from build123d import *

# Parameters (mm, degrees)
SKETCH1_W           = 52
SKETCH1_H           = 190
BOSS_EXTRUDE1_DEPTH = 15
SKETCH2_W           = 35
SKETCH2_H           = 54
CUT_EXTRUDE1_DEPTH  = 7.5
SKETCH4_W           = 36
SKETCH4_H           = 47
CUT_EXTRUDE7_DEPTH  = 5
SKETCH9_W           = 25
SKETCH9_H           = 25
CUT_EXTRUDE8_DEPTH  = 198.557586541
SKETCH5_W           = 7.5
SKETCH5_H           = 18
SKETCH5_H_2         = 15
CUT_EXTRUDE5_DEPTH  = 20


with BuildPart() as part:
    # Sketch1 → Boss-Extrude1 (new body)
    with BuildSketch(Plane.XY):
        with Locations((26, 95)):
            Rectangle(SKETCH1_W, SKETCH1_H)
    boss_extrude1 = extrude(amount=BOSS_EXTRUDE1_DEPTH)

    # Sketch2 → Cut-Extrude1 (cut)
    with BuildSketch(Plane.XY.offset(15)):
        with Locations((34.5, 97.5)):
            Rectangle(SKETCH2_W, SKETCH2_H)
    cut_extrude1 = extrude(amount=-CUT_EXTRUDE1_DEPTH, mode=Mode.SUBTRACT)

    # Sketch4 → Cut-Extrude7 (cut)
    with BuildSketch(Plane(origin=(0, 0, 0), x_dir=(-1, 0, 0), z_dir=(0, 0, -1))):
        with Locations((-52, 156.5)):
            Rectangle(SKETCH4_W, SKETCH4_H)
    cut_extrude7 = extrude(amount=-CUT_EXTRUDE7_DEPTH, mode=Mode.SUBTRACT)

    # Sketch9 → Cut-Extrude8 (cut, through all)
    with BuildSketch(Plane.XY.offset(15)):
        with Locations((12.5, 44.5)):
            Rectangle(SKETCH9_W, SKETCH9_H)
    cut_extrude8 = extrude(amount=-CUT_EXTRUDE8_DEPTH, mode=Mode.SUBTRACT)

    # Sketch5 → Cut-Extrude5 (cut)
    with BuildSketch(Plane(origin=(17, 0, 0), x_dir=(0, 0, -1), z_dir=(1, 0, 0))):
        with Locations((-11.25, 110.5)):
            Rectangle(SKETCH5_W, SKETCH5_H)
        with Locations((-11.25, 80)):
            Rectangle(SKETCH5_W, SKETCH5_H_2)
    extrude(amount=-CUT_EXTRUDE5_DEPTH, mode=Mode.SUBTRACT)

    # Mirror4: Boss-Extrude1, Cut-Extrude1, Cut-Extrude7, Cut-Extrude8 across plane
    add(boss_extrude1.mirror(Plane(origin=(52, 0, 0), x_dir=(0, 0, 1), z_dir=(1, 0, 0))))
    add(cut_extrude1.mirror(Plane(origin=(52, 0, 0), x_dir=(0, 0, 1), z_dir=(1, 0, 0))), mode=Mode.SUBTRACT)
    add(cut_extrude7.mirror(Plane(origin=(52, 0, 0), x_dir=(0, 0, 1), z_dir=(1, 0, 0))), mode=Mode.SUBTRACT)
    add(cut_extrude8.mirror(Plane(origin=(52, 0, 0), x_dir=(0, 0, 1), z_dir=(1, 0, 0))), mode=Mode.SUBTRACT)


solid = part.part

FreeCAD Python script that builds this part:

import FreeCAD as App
import Part
import Sketcher
Q = App.Units.Quantity


def add_polygon(sketch, points):
    """Adds a closed chain of lines whose ends are joined by coincident constraints."""
    first, n = sketch.GeometryCount, len(points)
    for a, b in zip(points, points[1:] + points[:1]):
        sketch.addGeometry(Part.LineSegment(App.Vector(*a, 0), App.Vector(*b, 0)), False)
    for i in range(n):
        sketch.addConstraint(Sketcher.Constraint("Coincident", first + i, 2, first + (i + 1) % n, 1))

doc = App.newDocument("Part")
params = doc.addObject("Spreadsheet::Sheet", "Params")
for row, (alias, value) in enumerate([
    ("sketch1_width", "52 mm"),
    ("sketch1_height", "190 mm"),
    ("pad1_length", "15 mm"),
    ("sketch2_width", "35 mm"),
    ("sketch2_height", "54 mm"),
    ("pocket1_length", "7.5 mm"),
    ("sketch3_width", "36 mm"),
    ("sketch3_height", "47 mm"),
    ("pocket2_length", "5 mm"),
    ("sketch4_width", "25 mm"),
    ("sketch5_width", "18 mm"),
    ("sketch5_width2", "15 mm"),
    ("sketch5_height", "7.5 mm"),
    ("pocket4_length", "20 mm"),
], start=1):
    params.set(f"A{row}", alias)
    params.set(f"B{row}", "=" + value)
    params.setAlias(f"B{row}", alias)

body = doc.addObject("PartDesign::Body", "Body")

# Sketch on XY plane
sketch1 = body.newObject("Sketcher::SketchObject", "Sketch")
sketch1.AttachmentSupport = (doc.getObject("XY_Plane"), [""])
sketch1.MapMode = "FlatFace"
add_polygon(sketch1, [(0, 190), (0, 0), (52, 0), (52, 190)])  # lines 0-3
sketch1.addConstraint(Sketcher.Constraint("Vertical", 0))
sketch1.addConstraint(Sketcher.Constraint("Horizontal", 1))
sketch1.addConstraint(Sketcher.Constraint("Vertical", 2))
sketch1.addConstraint(Sketcher.Constraint("Horizontal", 3))
sketch1.addConstraint(Sketcher.Constraint("Coincident", 0, 2, -1, 1))
sketch1.addConstraint(Sketcher.Constraint("DistanceX", 1, 1, 1, 2, Q("52 mm")))
sketch1.addConstraint(Sketcher.Constraint("DistanceY", 0, 2, 0, 1, Q("190 mm")))
sketch1.setExpression("Constraints[9]", "Params.sketch1_width")
sketch1.setExpression("Constraints[10]", "Params.sketch1_height")
pad1 = body.newObject("PartDesign::Pad", "Pad")
pad1.Profile = sketch1
pad1.setExpression("Length", "Params.pad1_length")

# Sketch on XY plane
sketch2 = body.newObject("Sketcher::SketchObject", "Sketch001")
sketch2.AttachmentSupport = (doc.getObject("XY_Plane"), [""])
sketch2.MapMode = "FlatFace"
sketch2.AttachmentOffset = App.Placement(App.Vector(0, 0, 15), App.Rotation())
add_polygon(sketch2, [(17, 124), (17, 70), (52, 70), (52, 124)])  # lines 0-3
sketch2.addConstraint(Sketcher.Constraint("Vertical", 0))
sketch2.addConstraint(Sketcher.Constraint("Horizontal", 1))
sketch2.addConstraint(Sketcher.Constraint("Vertical", 2))
sketch2.addConstraint(Sketcher.Constraint("Horizontal", 3))
sketch2.addConstraint(Sketcher.Constraint("DistanceX", 1, 1, 1, 2, Q("35 mm")))
sketch2.addConstraint(Sketcher.Constraint("DistanceY", 0, 2, 0, 1, Q("54 mm")))
sketch2.addConstraint(Sketcher.Constraint("DistanceX", -1, 1, 0, 2, Q("17 mm")))
sketch2.addConstraint(Sketcher.Constraint("DistanceY", -1, 1, 0, 2, Q("70.5 mm")))
sketch2.setExpression("Constraints[8]", "Params.sketch2_width")
sketch2.setExpression("Constraints[9]", "Params.sketch2_height")
pocket1 = body.newObject("PartDesign::Pocket", "Pocket")
pocket1.Profile = sketch2
pocket1.setExpression("Length", "Params.pocket1_length")

# Sketch on XY plane
sketch3 = body.newObject("Sketcher::SketchObject", "Sketch002")
sketch3.AttachmentSupport = (doc.getObject("XY_Plane"), [""])
sketch3.MapMode = "FlatFace"
add_polygon(sketch3, [(70, 180), (70, 133), (34, 133), (34, 180)])  # lines 0-3
sketch3.addConstraint(Sketcher.Constraint("Vertical", 0))
sketch3.addConstraint(Sketcher.Constraint("Horizontal", 1))
sketch3.addConstraint(Sketcher.Constraint("Vertical", 2))
sketch3.addConstraint(Sketcher.Constraint("Horizontal", 3))
sketch3.addConstraint(Sketcher.Constraint("DistanceX", 1, 2, 1, 1, Q("36 mm")))
sketch3.addConstraint(Sketcher.Constraint("DistanceY", 0, 2, 0, 1, Q("47 mm")))
sketch3.addConstraint(Sketcher.Constraint("DistanceX", -1, 1, 0, 2, Q("70 mm")))
sketch3.addConstraint(Sketcher.Constraint("DistanceY", -1, 1, 0, 2, Q("133 mm")))
sketch3.setExpression("Constraints[8]", "Params.sketch3_width")
sketch3.setExpression("Constraints[9]", "Params.sketch3_height")
pocket2 = body.newObject("PartDesign::Pocket", "Pocket001")
pocket2.Profile = sketch3
pocket2.setExpression("Length", "Params.pocket2_length")
pocket2.Reversed = True

# Sketch on XY plane
sketch4 = body.newObject("Sketcher::SketchObject", "Sketch003")
sketch4.AttachmentSupport = (doc.getObject("XY_Plane"), [""])
sketch4.MapMode = "FlatFace"
sketch4.AttachmentOffset = App.Placement(App.Vector(0, 0, 15), App.Rotation())
add_polygon(sketch4, [(0, 57), (0, 32), (25, 32), (25, 57)])  # lines 0-3
sketch4.addConstraint(Sketcher.Constraint("Vertical", 0))
sketch4.addConstraint(Sketcher.Constraint("Horizontal", 1))
sketch4.addConstraint(Sketcher.Constraint("Vertical", 2))
sketch4.addConstraint(Sketcher.Constraint("Horizontal", 3))
sketch4.addConstraint(Sketcher.Constraint("PointOnObject", 0, 2, -2))
sketch4.addConstraint(Sketcher.Constraint("Equal", 3, 0))
sketch4.addConstraint(Sketcher.Constraint("DistanceX", 1, 1, 1, 2, Q("25 mm")))
sketch4.addConstraint(Sketcher.Constraint("DistanceY", -1, 1, 0, 2, Q("32 mm")))
sketch4.setExpression("Constraints[10]", "Params.sketch4_width")
pocket3 = body.newObject("PartDesign::Pocket", "Pocket002")
pocket3.Profile = sketch4
pocket3.Type = "ThroughAll"

# Sketch on YZ plane
sketch5 = body.newObject("Sketcher::SketchObject", "Sketch004")
sketch5.AttachmentSupport = (doc.getObject("YZ_Plane"), [""])
sketch5.MapMode = "FlatFace"
sketch5.AttachmentOffset = App.Placement(App.Vector(0, 0, 17), App.Rotation())
add_polygon(sketch5, [(120, 15), (102, 15), (102, 8), (120, 8)])  # lines 0-3
add_polygon(sketch5, [(88, 15), (72, 15), (72, 8), (88, 8)])  # lines 4-7
sketch5.addConstraint(Sketcher.Constraint("Horizontal", 0))
sketch5.addConstraint(Sketcher.Constraint("Vertical", 1))
sketch5.addConstraint(Sketcher.Constraint("Horizontal", 2))
sketch5.addConstraint(Sketcher.Constraint("Vertical", 3))
sketch5.addConstraint(Sketcher.Constraint("Horizontal", 4))
sketch5.addConstraint(Sketcher.Constraint("Vertical", 5))
sketch5.addConstraint(Sketcher.Constraint("Horizontal", 6))
sketch5.addConstraint(Sketcher.Constraint("Vertical", 7))
sketch5.addConstraint(Sketcher.Constraint("Horizontal", 3, 2, 4, 2))
sketch5.addConstraint(Sketcher.Constraint("Horizontal", 2, 2, 5, 2))
sketch5.addConstraint(Sketcher.Constraint("DistanceX", 0, 2, 0, 1, Q("18 mm")))
sketch5.addConstraint(Sketcher.Constraint("DistanceX", 4, 2, 4, 1, Q("15 mm")))
sketch5.addConstraint(Sketcher.Constraint("DistanceY", 1, 2, 1, 1, Q("7.5 mm")))
sketch5.addConstraint(Sketcher.Constraint("DistanceY", -1, 1, 0, 2, Q("15 mm")))
sketch5.addConstraint(Sketcher.Constraint("DistanceX", 4, 2, 0, 2, Q("29 mm")))
sketch5.addConstraint(Sketcher.Constraint("DistanceX", -1, 1, 0, 2, Q("101.5 mm")))
sketch5.setExpression("Constraints[18]", "Params.sketch5_width")
sketch5.setExpression("Constraints[19]", "Params.sketch5_width2")
sketch5.setExpression("Constraints[20]", "Params.sketch5_height")
pocket4 = body.newObject("PartDesign::Pocket", "Pocket003")
pocket4.Profile = sketch5
pocket4.setExpression("Length", "Params.pocket4_length")
doc.recompute()

datumplane = body.newObject("PartDesign::Plane", "DatumPlane")
datumplane.AttachmentSupport = (doc.getObject("YZ_Plane"), [""])
datumplane.MapMode = "FlatFace"
datumplane.AttachmentOffset = App.Placement(App.Vector(0, 0, 52), App.Rotation())
mirrored = body.newObject("PartDesign::Mirrored", "Mirrored")
mirrored.Originals = [pad1, pocket1, pocket2, pocket3]
mirrored.MirrorPlane = (datumplane, [""])
body.Tip = mirrored

doc.recompute()
